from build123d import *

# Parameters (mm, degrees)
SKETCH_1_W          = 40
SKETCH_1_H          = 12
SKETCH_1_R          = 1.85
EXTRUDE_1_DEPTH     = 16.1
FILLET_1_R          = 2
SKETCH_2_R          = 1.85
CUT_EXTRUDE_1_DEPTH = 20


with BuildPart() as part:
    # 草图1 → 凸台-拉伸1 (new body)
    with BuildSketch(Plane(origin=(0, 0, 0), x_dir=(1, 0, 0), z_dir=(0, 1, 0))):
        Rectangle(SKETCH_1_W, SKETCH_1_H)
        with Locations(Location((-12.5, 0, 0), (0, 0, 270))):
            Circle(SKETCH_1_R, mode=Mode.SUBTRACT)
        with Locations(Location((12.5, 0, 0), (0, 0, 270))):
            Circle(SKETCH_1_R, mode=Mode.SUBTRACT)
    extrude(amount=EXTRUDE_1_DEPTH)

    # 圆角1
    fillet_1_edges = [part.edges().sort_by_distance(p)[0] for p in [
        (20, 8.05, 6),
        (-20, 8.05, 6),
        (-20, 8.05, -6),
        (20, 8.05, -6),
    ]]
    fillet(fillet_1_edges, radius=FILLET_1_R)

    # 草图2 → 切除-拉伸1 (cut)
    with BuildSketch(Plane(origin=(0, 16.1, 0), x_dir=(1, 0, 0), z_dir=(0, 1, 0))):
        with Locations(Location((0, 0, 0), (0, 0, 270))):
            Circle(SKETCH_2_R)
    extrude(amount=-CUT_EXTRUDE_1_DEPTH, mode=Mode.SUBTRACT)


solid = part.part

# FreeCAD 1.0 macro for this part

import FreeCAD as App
import Part
import Sketcher
Q = App.Units.Quantity


def edges_at(feature, points):
    """Names of the edges that pass closest to the given points."""
    edges = feature.Shape.Edges
    near = lambda p: min(range(len(edges)), key=lambda i: edges[i].distToShape(Part.Vertex(*p))[0])
    return sorted({f"Edge{near(p) + 1}" for p in points})


def add_polygon(sketch, points):
    """Adds a closed chain of lines whose ends are joined by coincident constraints."""
    first, n = sketch.GeometryCount, len(points)
    for a, b in zip(points, points[1:] + points[:1]):
        sketch.addGeometry(Part.LineSegment(App.Vector(*a, 0), App.Vector(*b, 0)), False)
    for i in range(n):
        sketch.addConstraint(Sketcher.Constraint("Coincident", first + i, 2, first + (i + 1) % n, 1))

doc = App.newDocument("Part")
params = doc.addObject("Spreadsheet::Sheet", "Params")
for row, (alias, value) in enumerate([
    ("sketch1_diameter", "3.7 mm"),
    ("sketch1_width", "40 mm"),
    ("sketch1_height", "12 mm"),
    ("pad1_length", "16.1 mm"),
    ("fillet_radius", "2 mm"),
    ("sketch2_diameter", "3.7 mm"),
    ("pocket1_length", "20 mm"),
], start=1):
    params.set(f"A{row}", alias)
    params.set(f"B{row}", "=" + value)
    params.setAlias(f"B{row}", alias)

body = doc.addObject("PartDesign::Body", "Body")

sketch1 = doc.addObject("Sketcher::SketchObject", "Sketch")
body.addObject(sketch1)
sketch1.AttachmentSupport = (doc.XZ_Plane, [""])
sketch1.MapMode = "FlatFace"
add_polygon(sketch1, [(-20, -6), (-20, 6), (20, 6), (20, -6)])
sketch1.addGeometry(Part.Circle(App.Vector(-12.5, 0, 0), App.Vector(0, 0, 1), 1.9), False)
sketch1.addGeometry(Part.Circle(App.Vector(12.5, 0, 0), App.Vector(0, 0, 1), 1.9), False)
sketch1.addConstraint([
    Sketcher.Constraint("Vertical", 0),
    Sketcher.Constraint("Horizontal", 1),
    Sketcher.Constraint("Vertical", 2),
    Sketcher.Constraint("Horizontal", 3),
    Sketcher.Constraint("Equal", 4, 5),
    Sketcher.Constraint("Symmetric", 4, 3, 5, 3, -1, 1),
    Sketcher.Constraint("Symmetric", 0, 2, 2, 2, -1, 1),
    Sketcher.Constraint("PointOnObject", 4, 3, -1),
    Sketcher.Constraint("Diameter", 4, Q("3.7 mm")),
    Sketcher.Constraint("DistanceX", 1, 1, 1, 2, Q("40 mm")),
    Sketcher.Constraint("DistanceY", 0, 1, 0, 2, Q("12 mm")),
    Sketcher.Constraint("DistanceX", 4, 3, 5, 3, Q("25 mm")),
])
sketch1.setExpression("Constraints[12]", "Params.sketch1_diameter")
sketch1.setExpression("Constraints[13]", "Params.sketch1_width")
sketch1.setExpression("Constraints[14]", "Params.sketch1_height")
pad1 = doc.addObject("PartDesign::Pad", "Pad")
body.addObject(pad1)
pad1.Profile = sketch1
pad1.setExpression("Length", "Params.pad1_length")
pad1.Reversed = True
doc.recompute()

fillet = doc.addObject("PartDesign::Fillet", "Fillet")
body.addObject(fillet)
fillet.Base = (pad1, edges_at(pad1, [
    (20, 8.05, 6),
    (-20, 8.05, 6),
    (-20, 8.05, -6),
    (20, 8.05, -6),
]))
fillet.setExpression("Radius", "Params.fillet_radius")

sketch2 = doc.addObject("Sketcher::SketchObject", "Sketch001")
body.addObject(sketch2)
sketch2.AttachmentSupport = (doc.XZ_Plane, [""])
sketch2.MapMode = "FlatFace"
sketch2.AttachmentOffset = App.Placement(App.Vector(0, 0, -16.1), App.Rotation())
sketch2.addGeometry(Part.Circle(App.Vector(0, 0, 0), App.Vector(0, 0, 1), 1.9), False)
sketch2.addConstraint([
    Sketcher.Constraint("Coincident", 0, 3, -1, 1),
    Sketcher.Constraint("Diameter", 0, Q("3.7 mm")),
])
sketch2.setExpression("Constraints[1]", "Params.sketch2_diameter")
pocket1 = doc.addObject("PartDesign::Pocket", "Pocket")
body.addObject(pocket1)
pocket1.Profile = sketch2
pocket1.setExpression("Length", "Params.pocket1_length")
pocket1.Reversed = True

doc.recompute()
